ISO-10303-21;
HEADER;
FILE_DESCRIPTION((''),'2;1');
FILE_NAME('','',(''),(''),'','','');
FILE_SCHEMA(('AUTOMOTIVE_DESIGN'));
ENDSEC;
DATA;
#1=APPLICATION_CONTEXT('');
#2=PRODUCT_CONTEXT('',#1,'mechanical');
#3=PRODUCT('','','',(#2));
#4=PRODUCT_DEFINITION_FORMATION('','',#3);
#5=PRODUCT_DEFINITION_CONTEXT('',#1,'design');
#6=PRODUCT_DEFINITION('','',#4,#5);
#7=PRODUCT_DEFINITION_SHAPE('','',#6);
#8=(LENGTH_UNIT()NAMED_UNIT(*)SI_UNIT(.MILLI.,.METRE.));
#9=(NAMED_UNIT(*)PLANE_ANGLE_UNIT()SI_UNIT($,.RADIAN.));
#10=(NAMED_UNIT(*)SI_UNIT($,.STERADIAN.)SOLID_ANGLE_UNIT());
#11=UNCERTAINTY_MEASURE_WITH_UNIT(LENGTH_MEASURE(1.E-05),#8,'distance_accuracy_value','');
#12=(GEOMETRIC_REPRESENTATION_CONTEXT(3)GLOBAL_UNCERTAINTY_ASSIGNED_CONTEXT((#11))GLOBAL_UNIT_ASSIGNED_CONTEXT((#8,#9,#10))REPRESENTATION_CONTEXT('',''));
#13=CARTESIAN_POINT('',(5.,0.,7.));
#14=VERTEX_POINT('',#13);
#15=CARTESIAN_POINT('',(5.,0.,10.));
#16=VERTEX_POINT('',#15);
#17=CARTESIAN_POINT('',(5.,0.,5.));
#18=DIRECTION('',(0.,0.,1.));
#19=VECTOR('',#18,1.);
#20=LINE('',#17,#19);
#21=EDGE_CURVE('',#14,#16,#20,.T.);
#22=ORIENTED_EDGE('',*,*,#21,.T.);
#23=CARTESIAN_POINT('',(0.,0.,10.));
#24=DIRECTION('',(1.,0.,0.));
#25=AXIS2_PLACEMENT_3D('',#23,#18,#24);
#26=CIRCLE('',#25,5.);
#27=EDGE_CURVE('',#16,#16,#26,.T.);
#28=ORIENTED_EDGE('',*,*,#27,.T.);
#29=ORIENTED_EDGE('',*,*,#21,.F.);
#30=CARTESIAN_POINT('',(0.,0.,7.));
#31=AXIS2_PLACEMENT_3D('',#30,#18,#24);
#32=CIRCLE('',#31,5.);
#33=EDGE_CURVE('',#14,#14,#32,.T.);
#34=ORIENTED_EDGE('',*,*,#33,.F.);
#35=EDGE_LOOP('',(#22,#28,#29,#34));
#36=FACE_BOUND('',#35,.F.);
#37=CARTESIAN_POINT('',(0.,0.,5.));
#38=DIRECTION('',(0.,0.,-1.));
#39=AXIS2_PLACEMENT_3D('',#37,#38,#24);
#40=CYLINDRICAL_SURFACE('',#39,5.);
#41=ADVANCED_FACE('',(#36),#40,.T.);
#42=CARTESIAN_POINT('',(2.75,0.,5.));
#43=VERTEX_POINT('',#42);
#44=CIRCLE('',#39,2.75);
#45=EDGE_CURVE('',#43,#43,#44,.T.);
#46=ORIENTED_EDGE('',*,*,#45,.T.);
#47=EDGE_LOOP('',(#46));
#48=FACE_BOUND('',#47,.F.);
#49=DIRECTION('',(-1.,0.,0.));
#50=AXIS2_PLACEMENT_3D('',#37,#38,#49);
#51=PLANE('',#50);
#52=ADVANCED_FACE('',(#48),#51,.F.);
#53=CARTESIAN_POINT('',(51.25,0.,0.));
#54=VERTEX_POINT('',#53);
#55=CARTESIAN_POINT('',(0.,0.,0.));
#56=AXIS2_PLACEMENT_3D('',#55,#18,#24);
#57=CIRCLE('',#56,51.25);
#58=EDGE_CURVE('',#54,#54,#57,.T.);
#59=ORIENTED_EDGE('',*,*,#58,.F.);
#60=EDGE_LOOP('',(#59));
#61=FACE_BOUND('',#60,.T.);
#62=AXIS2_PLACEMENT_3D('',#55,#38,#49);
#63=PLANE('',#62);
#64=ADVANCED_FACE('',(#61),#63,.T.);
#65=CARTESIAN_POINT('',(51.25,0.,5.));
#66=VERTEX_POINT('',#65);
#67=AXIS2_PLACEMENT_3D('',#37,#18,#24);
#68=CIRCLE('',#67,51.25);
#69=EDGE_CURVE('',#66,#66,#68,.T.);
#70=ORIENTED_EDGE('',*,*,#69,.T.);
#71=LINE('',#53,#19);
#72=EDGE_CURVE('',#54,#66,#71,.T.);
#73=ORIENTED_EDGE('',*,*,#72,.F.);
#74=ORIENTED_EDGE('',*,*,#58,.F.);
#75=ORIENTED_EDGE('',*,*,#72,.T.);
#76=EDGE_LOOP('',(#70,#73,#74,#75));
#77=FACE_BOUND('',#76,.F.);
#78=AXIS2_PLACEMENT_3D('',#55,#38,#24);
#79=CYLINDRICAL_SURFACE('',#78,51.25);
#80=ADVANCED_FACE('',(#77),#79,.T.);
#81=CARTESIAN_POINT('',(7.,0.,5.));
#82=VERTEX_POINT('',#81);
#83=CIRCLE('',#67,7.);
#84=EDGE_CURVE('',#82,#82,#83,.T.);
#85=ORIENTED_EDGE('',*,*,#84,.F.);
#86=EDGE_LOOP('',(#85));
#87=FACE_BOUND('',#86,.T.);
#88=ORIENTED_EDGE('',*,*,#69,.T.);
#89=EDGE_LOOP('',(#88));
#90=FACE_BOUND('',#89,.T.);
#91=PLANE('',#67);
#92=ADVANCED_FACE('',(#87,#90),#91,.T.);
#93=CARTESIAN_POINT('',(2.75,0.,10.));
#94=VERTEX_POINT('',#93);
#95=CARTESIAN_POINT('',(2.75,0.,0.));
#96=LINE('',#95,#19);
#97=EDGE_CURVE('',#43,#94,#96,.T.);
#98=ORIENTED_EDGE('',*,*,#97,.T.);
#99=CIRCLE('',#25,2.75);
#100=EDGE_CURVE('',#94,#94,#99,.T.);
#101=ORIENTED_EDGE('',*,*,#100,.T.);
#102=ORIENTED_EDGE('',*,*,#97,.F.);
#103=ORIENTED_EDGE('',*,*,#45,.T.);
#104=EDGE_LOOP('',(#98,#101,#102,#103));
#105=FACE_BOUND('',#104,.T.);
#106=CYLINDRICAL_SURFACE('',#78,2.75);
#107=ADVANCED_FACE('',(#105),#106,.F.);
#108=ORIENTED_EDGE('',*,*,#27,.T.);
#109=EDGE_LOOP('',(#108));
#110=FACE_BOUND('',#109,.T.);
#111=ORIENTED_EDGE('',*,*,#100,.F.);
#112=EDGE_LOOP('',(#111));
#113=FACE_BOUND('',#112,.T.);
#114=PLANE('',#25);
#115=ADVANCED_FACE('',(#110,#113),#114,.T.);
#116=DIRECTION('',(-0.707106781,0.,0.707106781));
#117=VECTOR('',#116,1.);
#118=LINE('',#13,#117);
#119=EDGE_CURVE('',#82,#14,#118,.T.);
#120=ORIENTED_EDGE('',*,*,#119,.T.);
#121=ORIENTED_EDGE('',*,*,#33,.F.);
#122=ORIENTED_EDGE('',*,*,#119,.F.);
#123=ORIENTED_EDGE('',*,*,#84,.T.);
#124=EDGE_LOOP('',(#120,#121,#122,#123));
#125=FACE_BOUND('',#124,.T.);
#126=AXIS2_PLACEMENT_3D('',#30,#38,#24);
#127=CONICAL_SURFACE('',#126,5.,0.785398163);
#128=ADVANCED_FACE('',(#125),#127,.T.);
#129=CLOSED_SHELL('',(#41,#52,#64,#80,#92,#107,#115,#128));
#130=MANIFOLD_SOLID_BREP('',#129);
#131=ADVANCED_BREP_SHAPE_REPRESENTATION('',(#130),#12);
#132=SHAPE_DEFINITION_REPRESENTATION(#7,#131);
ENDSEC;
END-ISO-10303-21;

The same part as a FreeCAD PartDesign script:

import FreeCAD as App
import Part
import Sketcher

V = App.Vector
Q = App.Units.Quantity


def edges_at(feature, points):
    """Names of the edges that pass closest to the given points."""
    edges = feature.Shape.Edges
    near = lambda p: min(range(len(edges)), key=lambda i: edges[i].distToShape(Part.Vertex(*p))[0])
    return sorted({f"Edge{near(p) + 1}" for p in points})

doc = App.newDocument("Part")
params = doc.addObject("Spreadsheet::Sheet", "Params")
for row, (alias, value) in enumerate([
    ("sketch1_diameter", "102.5 mm"),
    ("sketch1_diameter2", "5.5 mm"),
    ("pad1_length", "5 mm"),
    ("sketch2_diameter", "10 mm"),
    ("sketch2_diameter2", "5.5 mm"),
    ("pad2_length", "5 mm"),
    ("chamfer_size", "2 mm"),
    ("sketch3_diameter", "5.5 mm"),
    ("pad3_length", "5 mm"),
], start=1):
    params.set(f"A{row}", alias)
    params.set(f"B{row}", "=" + value)
    params.setAlias(f"B{row}", alias)

body = doc.addObject("PartDesign::Body", "Body")

# Sketch on XY plane
sketch1 = body.newObject("Sketcher::SketchObject", "Sketch")
sketch1.AttachmentSupport = (doc.getObject("XY_Plane"), [""])
sketch1.MapMode = "FlatFace"
sketch1.addGeometry([
    Part.Circle(V(0, 0, 0), V(0, 0, 1), 51.25),
    Part.Circle(V(0, 0, 0), V(0, 0, 1), 2.75),
], False)
sketch1.addConstraint([
    Sketcher.Constraint("Coincident", 0, 3, -1, 1),
    Sketcher.Constraint("Coincident", 1, 3, -1, 1),
    Sketcher.Constraint("Diameter", 0, Q("102.5 mm")),
    Sketcher.Constraint("Diameter", 1, Q("5.5 mm")),
])
sketch1.setExpression("Constraints[2]", "Params.sketch1_diameter")
sketch1.setExpression("Constraints[3]", "Params.sketch1_diameter2")
pad1 = body.newObject("PartDesign::Pad", "Pad")
pad1.Profile = sketch1
pad1.setExpression("Length", "Params.pad1_length")

# Sketch on XY plane
sketch2 = body.newObject("Sketcher::SketchObject", "Sketch001")
sketch2.AttachmentSupport = (doc.getObject("XY_Plane"), [""])
sketch2.MapMode = "FlatFace"
sketch2.AttachmentOffset = App.Placement(V(0, 0, 5), App.Rotation())
sketch2.addGeometry([
    Part.Circle(V(0, 0, 0), V(0, 0, 1), 5),
    Part.Circle(V(0, 0, 0), V(0, 0, 1), 2.75),
], False)
sketch2.addConstraint([
    Sketcher.Constraint("Coincident", 0, 3, -1, 1),
    Sketcher.Constraint("Coincident", 1, 3, -1, 1),
    Sketcher.Constraint("Diameter", 0, Q("10 mm")),
    Sketcher.Constraint("Diameter", 1, Q("5.5 mm")),
])
sketch2.setExpression("Constraints[2]", "Params.sketch2_diameter")
sketch2.setExpression("Constraints[3]", "Params.sketch2_diameter2")
pad2 = body.newObject("PartDesign::Pad", "Pad001")
pad2.Profile = sketch2
pad2.setExpression("Length", "Params.pad2_length")
doc.recompute()

chamfer = body.newObject("PartDesign::Chamfer", "Chamfer")
chamfer.Base = (pad2, edges_at(pad2, [(-5, 0, 5)]))
chamfer.setExpression("Size", "Params.chamfer_size")

# Sketch on XY plane
sketch3 = body.newObject("Sketcher::SketchObject", "Sketch002")
sketch3.AttachmentSupport = (doc.getObject("XY_Plane"), [""])
sketch3.MapMode = "FlatFace"
sketch3.addGeometry(Part.Circle(V(0, 0, 0), V(0, 0, 1), 2.75), False)
sketch3.addConstraint([
    Sketcher.Constraint("Coincident", 0, 3, -1, 1),
    Sketcher.Constraint("Diameter", 0, Q("5.5 mm")),
])
sketch3.setExpression("Constraints[1]", "Params.sketch3_diameter")
pad3 = body.newObject("PartDesign::Pad", "Pad002")
pad3.Profile = sketch3
pad3.setExpression("Length", "Params.pad3_length")

doc.recompute()
